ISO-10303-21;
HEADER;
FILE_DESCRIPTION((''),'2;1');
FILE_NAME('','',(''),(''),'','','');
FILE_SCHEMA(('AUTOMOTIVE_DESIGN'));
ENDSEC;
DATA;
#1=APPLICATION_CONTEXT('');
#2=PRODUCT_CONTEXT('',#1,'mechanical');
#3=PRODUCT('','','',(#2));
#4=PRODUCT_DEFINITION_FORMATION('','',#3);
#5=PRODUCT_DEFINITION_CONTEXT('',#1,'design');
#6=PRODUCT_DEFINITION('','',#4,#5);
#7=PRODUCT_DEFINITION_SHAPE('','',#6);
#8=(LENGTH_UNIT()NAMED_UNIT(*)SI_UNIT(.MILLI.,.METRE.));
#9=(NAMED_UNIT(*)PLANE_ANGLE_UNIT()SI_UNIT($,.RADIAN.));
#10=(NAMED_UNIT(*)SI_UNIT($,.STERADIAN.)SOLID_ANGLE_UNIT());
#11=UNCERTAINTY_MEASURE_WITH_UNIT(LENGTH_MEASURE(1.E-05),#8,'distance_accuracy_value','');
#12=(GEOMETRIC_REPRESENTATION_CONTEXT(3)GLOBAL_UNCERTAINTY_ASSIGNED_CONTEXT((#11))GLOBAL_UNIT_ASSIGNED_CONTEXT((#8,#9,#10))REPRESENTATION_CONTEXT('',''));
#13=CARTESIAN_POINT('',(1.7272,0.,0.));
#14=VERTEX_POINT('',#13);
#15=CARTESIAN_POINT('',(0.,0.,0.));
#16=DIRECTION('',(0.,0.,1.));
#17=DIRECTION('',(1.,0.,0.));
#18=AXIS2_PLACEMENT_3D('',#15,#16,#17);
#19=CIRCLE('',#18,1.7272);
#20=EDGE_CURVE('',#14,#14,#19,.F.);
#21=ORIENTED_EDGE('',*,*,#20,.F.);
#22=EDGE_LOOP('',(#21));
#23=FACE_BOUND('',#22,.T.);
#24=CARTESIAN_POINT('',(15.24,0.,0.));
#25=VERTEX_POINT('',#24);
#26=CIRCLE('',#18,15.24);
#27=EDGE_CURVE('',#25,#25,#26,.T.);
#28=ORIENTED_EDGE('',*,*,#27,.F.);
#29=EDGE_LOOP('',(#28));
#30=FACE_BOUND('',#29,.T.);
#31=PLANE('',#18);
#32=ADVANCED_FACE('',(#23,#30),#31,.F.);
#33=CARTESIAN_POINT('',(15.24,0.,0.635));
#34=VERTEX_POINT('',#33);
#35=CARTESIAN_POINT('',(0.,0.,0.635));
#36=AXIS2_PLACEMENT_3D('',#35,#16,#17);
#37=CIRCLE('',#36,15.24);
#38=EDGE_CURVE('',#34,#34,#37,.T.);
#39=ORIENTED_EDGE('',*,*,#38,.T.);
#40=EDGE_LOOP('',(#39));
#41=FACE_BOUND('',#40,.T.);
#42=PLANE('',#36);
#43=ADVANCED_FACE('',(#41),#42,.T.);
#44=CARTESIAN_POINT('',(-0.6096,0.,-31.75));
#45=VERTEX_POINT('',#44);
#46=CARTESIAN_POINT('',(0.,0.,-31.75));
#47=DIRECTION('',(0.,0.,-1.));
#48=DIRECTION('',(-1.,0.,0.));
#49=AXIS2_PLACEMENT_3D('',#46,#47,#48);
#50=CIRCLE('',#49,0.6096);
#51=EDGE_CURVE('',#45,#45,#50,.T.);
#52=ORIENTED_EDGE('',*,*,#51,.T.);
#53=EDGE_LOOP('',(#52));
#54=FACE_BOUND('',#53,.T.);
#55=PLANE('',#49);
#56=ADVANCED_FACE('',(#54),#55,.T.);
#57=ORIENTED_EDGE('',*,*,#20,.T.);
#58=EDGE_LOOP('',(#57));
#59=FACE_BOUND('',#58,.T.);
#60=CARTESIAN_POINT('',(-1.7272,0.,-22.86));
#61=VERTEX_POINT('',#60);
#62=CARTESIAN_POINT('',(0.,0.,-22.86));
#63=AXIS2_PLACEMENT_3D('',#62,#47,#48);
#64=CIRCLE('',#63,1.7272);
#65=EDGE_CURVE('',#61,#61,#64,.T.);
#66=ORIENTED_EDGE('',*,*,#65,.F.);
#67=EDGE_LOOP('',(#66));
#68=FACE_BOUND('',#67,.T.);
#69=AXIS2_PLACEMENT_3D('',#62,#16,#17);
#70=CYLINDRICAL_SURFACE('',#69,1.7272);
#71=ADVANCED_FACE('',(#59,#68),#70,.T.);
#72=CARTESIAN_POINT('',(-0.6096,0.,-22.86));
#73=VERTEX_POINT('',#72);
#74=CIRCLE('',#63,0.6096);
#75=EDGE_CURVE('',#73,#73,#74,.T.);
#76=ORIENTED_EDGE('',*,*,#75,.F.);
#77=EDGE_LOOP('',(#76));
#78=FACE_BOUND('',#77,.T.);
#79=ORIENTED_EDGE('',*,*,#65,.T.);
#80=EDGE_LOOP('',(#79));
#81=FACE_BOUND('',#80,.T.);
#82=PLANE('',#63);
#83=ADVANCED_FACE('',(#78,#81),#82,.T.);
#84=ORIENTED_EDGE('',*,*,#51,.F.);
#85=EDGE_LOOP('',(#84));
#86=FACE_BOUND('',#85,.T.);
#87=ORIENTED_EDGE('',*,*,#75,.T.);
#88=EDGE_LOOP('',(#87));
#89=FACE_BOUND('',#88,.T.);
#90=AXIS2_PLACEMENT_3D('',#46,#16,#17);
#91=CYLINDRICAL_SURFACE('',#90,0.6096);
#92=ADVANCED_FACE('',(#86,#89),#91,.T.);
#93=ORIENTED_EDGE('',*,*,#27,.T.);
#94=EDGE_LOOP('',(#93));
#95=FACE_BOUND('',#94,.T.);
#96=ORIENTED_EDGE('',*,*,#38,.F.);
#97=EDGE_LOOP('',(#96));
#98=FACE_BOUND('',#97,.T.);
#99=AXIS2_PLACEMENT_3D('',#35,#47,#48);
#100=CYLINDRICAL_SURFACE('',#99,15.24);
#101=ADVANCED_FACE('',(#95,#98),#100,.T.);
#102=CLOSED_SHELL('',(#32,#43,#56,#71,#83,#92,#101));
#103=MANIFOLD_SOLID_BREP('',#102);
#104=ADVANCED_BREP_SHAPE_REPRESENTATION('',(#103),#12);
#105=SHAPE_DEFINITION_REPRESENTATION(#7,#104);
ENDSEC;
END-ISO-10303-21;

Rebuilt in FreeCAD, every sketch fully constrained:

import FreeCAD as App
import Part
import Sketcher
Q = App.Units.Quantity

doc = App.newDocument("Part")
body = doc.addObject("PartDesign::Body", "Body")

# Sketch on XY plane
sketch1 = body.newObject("Sketcher::SketchObject", "Sketch")
sketch1.AttachmentSupport = (doc.getObject("XY_Plane"), [""])
sketch1.MapMode = "FlatFace"
sketch1.addGeometry(Part.Circle(App.Vector(0, 0, 0), App.Vector(0, 0, 1), 15), False)
sketch1.addConstraint(Sketcher.Constraint("Coincident", 0, 3, -1, 1))
sketch1.addConstraint(Sketcher.Constraint("Diameter", 0, Q("1.2 in")))
pad1 = body.newObject("PartDesign::Pad", "Pad")
pad1.Profile = sketch1
pad1.Length = Q("0.025 in")

# Sketch on XY plane
sketch2 = body.newObject("Sketcher::SketchObject", "Sketch001")
sketch2.AttachmentSupport = (doc.getObject("XY_Plane"), [""])
sketch2.MapMode = "FlatFace"
sketch2.addGeometry(Part.Circle(App.Vector(0, 0, 0), App.Vector(0, 0, 1), 1.7), False)
sketch2.addConstraint(Sketcher.Constraint("Coincident", 0, 3, -1, 1))
sketch2.addConstraint(Sketcher.Constraint("Diameter", 0, Q("0.136 in")))
pad2 = body.newObject("PartDesign::Pad", "Pad001")
pad2.Profile = sketch2
pad2.Length = Q("0.9 in")
pad2.Reversed = True

# Sketch on XY plane
sketch3 = body.newObject("Sketcher::SketchObject", "Sketch002")
sketch3.AttachmentSupport = (doc.getObject("XY_Plane"), [""])
sketch3.MapMode = "FlatFace"
sketch3.AttachmentOffset = App.Placement(App.Vector(0, 0, -0.9 * 25.4), App.Rotation())
sketch3.addGeometry(Part.Circle(App.Vector(0, 0, 0), App.Vector(0, 0, 1), 0.6), False)
sketch3.addConstraint(Sketcher.Constraint("Coincident", 0, 3, -1, 1))
sketch3.addConstraint(Sketcher.Constraint("Diameter", 0, Q("0.048 in")))
pad3 = body.newObject("PartDesign::Pad", "Pad002")
pad3.Profile = sketch3
pad3.Length = Q("0.35 in")
pad3.Reversed = True

doc.recompute()
